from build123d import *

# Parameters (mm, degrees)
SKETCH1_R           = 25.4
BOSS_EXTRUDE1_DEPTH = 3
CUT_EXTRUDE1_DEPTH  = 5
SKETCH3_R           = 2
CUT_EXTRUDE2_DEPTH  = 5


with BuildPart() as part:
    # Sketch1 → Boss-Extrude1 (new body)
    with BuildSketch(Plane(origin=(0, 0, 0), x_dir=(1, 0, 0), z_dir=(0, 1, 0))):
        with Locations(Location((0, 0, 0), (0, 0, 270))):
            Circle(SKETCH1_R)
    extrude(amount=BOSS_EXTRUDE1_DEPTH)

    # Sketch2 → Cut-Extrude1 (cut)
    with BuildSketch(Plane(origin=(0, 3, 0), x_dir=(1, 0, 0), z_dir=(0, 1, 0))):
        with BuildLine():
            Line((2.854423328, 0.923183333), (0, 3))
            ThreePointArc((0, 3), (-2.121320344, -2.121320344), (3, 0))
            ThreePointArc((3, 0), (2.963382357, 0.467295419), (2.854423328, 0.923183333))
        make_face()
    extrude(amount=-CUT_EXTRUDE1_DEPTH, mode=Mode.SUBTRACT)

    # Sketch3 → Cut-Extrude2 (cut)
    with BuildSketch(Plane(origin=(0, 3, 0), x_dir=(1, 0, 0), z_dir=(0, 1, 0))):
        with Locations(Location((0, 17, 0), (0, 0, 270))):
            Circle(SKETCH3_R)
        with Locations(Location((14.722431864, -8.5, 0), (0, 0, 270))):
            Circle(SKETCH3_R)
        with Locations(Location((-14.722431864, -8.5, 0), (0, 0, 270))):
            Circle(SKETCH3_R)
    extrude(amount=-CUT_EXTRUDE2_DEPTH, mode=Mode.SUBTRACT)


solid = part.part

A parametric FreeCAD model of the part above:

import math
import FreeCAD as App
import Part
import Sketcher
from FreeCAD import Vector
Q = App.Units.Quantity

doc = App.newDocument("Part")
body = doc.addObject("PartDesign::Body", "Body")

# Sketch on XZ plane
sketch1 = body.newObject("Sketcher::SketchObject", "Sketch")
sketch1.AttachmentSupport = (doc.getObject("XZ_Plane"), [""])
sketch1.MapMode = "FlatFace"
sketch1.addGeometry(Part.Circle(Vector(0, 0, 0), Vector(0, 0, 1), 25), False)
sketch1.addConstraint(Sketcher.Constraint("Coincident", 0, 3, -1, 1))
sketch1.addConstraint(Sketcher.Constraint("Diameter", 0, Q("50.8 mm")))
pad1 = body.newObject("PartDesign::Pad", "Pad")
pad1.Profile = sketch1
pad1.Length = 3
pad1.Reversed = True

# Sketch on XZ plane
sketch2 = body.newObject("Sketcher::SketchObject", "Sketch001")
sketch2.AttachmentSupport = (doc.getObject("XZ_Plane"), [""])
sketch2.MapMode = "FlatFace"
sketch2.AttachmentOffset = App.Placement(Vector(0, 0, -3), App.Rotation())
sketch2.addGeometry(Part.LineSegment(Vector(2.9, -0.9, 0), Vector(0, -3, 0)), False)
sketch2.addGeometry(Part.ArcOfCircle(Part.Circle(Vector(0, 0, 0), Vector(0, 0, 1), 3), math.radians(0), math.radians(270)), False)
sketch2.addGeometry(Part.ArcOfCircle(Part.Circle(Vector(0, 0, 0), Vector(0, 0, 1), 3), math.radians(-17.92), math.radians(0)), False)
sketch2.addConstraint(Sketcher.Constraint("Coincident", 0, 2, 1, 2))
sketch2.addConstraint(Sketcher.Constraint("Tangent", 1, 1, 2, 2))
sketch2.addConstraint(Sketcher.Constraint("Coincident", 2, 1, 0, 1))
sketch2.addConstraint(Sketcher.Constraint("Coincident", 1, 3, -1, 1))
sketch2.addConstraint(Sketcher.Constraint("Equal", 1, 2))
sketch2.addConstraint(Sketcher.Constraint("PointOnObject", 0, 2, -2))
sketch2.addConstraint(Sketcher.Constraint("PointOnObject", 1, 1, -1))
sketch2.addConstraint(Sketcher.Constraint("Radius", 1, Q("3 mm")))
sketch2.addConstraint(Sketcher.Constraint("Distance", 0, Q("3.53 mm")))
pocket1 = body.newObject("PartDesign::Pocket", "Pocket")
pocket1.Profile = sketch2
pocket1.Length = 5
pocket1.Reversed = True

# Sketch on XZ plane
sketch3 = body.newObject("Sketcher::SketchObject", "Sketch002")
sketch3.AttachmentSupport = (doc.getObject("XZ_Plane"), [""])
sketch3.MapMode = "FlatFace"
sketch3.AttachmentOffset = App.Placement(Vector(0, 0, -3), App.Rotation())
sketch3.addGeometry(Part.Circle(Vector(0, -17, 0), Vector(0, 0, 1), 2), False)
sketch3.addGeometry(Part.Circle(Vector(14.7, 8.5, 0), Vector(0, 0, 1), 2), False)
sketch3.addGeometry(Part.Circle(Vector(-14.7, 8.5, 0), Vector(0, 0, 1), 2), False)
sketch3.addConstraint(Sketcher.Constraint("Equal", 0, 1))
sketch3.addConstraint(Sketcher.Constraint("Equal", 1, 2))
sketch3.addConstraint(Sketcher.Constraint("Symmetric", 1, 3, 2, 3, -2))
sketch3.addConstraint(Sketcher.Constraint("PointOnObject", 0, 3, -2))
sketch3.addConstraint(Sketcher.Constraint("Diameter", 0, Q("4 mm")))
sketch3.addConstraint(Sketcher.Constraint("DistanceY", 0, 3, -1, 1, Q("17 mm")))
sketch3.addConstraint(Sketcher.Constraint("DistanceY", -1, 1, 1, 3, Q("8.5 mm")))
sketch3.addConstraint(Sketcher.Constraint("DistanceX", -1, 1, 1, 3, Q("14.722432 mm")))
pocket2 = body.newObject("PartDesign::Pocket", "Pocket001")
pocket2.Profile = sketch3
pocket2.Length = 5
pocket2.Reversed = True

doc.recompute()
